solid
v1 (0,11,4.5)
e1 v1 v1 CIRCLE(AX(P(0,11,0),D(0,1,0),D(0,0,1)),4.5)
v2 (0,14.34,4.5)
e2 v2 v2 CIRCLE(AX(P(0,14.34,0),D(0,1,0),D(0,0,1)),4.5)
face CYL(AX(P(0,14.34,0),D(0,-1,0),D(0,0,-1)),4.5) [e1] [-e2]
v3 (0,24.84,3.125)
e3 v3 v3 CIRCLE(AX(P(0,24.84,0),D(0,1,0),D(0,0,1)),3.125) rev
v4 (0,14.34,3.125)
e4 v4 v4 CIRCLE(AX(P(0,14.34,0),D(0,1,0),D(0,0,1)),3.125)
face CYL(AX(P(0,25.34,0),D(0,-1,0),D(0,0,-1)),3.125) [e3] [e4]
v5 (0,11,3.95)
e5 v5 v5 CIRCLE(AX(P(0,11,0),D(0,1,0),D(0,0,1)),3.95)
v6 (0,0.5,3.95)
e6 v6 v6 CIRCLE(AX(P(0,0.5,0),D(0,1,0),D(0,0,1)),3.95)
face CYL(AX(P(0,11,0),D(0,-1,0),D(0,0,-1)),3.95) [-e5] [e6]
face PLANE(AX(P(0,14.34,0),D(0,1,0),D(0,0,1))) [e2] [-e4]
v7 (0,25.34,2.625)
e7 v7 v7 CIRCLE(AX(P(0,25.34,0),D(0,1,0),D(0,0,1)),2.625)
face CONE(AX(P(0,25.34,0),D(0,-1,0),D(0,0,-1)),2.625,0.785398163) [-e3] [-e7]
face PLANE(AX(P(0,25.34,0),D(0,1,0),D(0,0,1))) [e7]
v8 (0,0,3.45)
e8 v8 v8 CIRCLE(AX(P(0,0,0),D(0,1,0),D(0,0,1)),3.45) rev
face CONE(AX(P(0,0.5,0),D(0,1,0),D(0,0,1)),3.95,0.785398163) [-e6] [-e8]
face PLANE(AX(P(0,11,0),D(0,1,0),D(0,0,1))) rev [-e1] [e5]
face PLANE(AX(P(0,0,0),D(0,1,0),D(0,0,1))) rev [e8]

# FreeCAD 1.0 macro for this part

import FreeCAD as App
import Part
import Sketcher
from FreeCAD import Vector
Q = App.Units.Quantity


def edges_at(feature, points):
    """Names of the edges that pass closest to the given points."""
    edges = feature.Shape.Edges
    near = lambda p: min(range(len(edges)), key=lambda i: edges[i].distToShape(Part.Vertex(*p))[0])
    return sorted({f"Edge{near(p) + 1}" for p in points})

doc = App.newDocument("Part")
body = doc.addObject("PartDesign::Body", "Body")

# Sketch on XZ plane
sketch1 = doc.addObject("Sketcher::SketchObject", "Sketch")
body.addObject(sketch1)
sketch1.AttachmentSupport = (doc.XZ_Plane, [""])
sketch1.MapMode = "FlatFace"
sketch1.addGeometry(Part.Circle(Vector(0, 0, 0), Vector(0, 0, 1), 4), False)
sketch1.addConstraint(Sketcher.Constraint("Coincident", 0, 3, -1, 1))
sketch1.addConstraint(Sketcher.Constraint("Diameter", 0, Q("7.9 mm")))
pad1 = doc.addObject("PartDesign::Pad", "Pad")
body.addObject(pad1)
pad1.Profile = sketch1
pad1.Length = 11
pad1.Reversed = True

# Sketch on XZ plane
sketch2 = doc.addObject("Sketcher::SketchObject", "Sketch001")
body.addObject(sketch2)
sketch2.AttachmentSupport = (doc.XZ_Plane, [""])
sketch2.MapMode = "FlatFace"
sketch2.AttachmentOffset = App.Placement(Vector(0, 0, -11), App.Rotation())
sketch2.addGeometry(Part.Circle(Vector(0, 0, 0), Vector(0, 0, 1), 4.5), False)
sketch2.addConstraint(Sketcher.Constraint("Coincident", 0, 3, -1, 1))
sketch2.addConstraint(Sketcher.Constraint("Diameter", 0, Q("9 mm")))
pad2 = doc.addObject("PartDesign::Pad", "Pad001")
body.addObject(pad2)
pad2.Profile = sketch2
pad2.Length = 3.34
pad2.Reversed = True

# Sketch on XZ plane
sketch3 = doc.addObject("Sketcher::SketchObject", "Sketch002")
body.addObject(sketch3)
sketch3.AttachmentSupport = (doc.XZ_Plane, [""])
sketch3.MapMode = "FlatFace"
sketch3.AttachmentOffset = App.Placement(Vector(0, 0, -14.34), App.Rotation())
sketch3.addGeometry(Part.Circle(Vector(0, 0, 0), Vector(0, 0, 1), 3.1), False)
sketch3.addConstraint(Sketcher.Constraint("Coincident", 0, 3, -1, 1))
sketch3.addConstraint(Sketcher.Constraint("Diameter", 0, Q("6.25 mm")))
pad3 = doc.addObject("PartDesign::Pad", "Pad002")
body.addObject(pad3)
pad3.Profile = sketch3
pad3.Length = 11
pad3.Reversed = True
doc.recompute()

chamfer = doc.addObject("PartDesign::Chamfer", "Chamfer")
body.addObject(chamfer)
chamfer.Base = (pad3, edges_at(pad3, [(0, 25.34, -3.125), (0, 0, -3.95)]))
chamfer.Size = 0.5

doc.recompute()
